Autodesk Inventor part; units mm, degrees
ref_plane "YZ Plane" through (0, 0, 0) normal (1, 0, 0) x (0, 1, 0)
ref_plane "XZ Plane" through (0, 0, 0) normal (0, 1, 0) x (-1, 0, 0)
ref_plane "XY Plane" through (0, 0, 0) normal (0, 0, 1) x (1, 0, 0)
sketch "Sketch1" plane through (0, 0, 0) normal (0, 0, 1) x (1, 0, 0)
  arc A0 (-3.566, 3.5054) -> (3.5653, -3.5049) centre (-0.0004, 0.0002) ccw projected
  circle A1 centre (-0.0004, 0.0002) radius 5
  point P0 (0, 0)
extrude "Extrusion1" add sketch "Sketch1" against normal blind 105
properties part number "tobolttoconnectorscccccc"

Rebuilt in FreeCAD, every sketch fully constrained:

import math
import FreeCAD as App
import Part
import Sketcher
from FreeCAD import Vector

doc = App.newDocument("Part")
body = doc.addObject("PartDesign::Body", "Body")

# Sketch on XY plane
sketch1 = doc.addObject("Sketcher::SketchObject", "Sketch")
body.addObject(sketch1)
sketch1.AttachmentSupport = (doc.XY_Plane, [""])
sketch1.MapMode = "FlatFace"
sketch1.addGeometry(Part.ArcOfCircle(Part.Circle(Vector(0, 0, 0), Vector(0, 0, 1), 5), math.radians(-45), math.radians(135)), False)
sketch1.addGeometry(Part.ArcOfCircle(Part.Circle(Vector(0, 0, 0), Vector(0, 0, 1), 5), math.radians(135), math.radians(315)), False)
sketch1.addConstraint(Sketcher.Constraint("Tangent", 0, 1, 1, 2))
sketch1.addConstraint(Sketcher.Constraint("Coincident", 1, 1, 0, 2))
sketch1.addConstraint(Sketcher.Constraint("Radius", 0, 5.0))
sketch1.addConstraint(Sketcher.Constraint("DistanceY", 0, 1, -1, 1, 3.505))
sketch1.addConstraint(Sketcher.Constraint("DistanceX", 1, 1, -1, 1, 3.566))
sketch1.addConstraint(Sketcher.Constraint("DistanceY", 0, 1, 0, 3, 3.505))
sketch1.addConstraint(Sketcher.Constraint("DistanceX", 0, 3, -1, 1, 0.0004))
pad1 = doc.addObject("PartDesign::Pad", "Pad")
body.addObject(pad1)
pad1.Profile = sketch1
pad1.Length = 105
pad1.Reversed = True

doc.recompute()
